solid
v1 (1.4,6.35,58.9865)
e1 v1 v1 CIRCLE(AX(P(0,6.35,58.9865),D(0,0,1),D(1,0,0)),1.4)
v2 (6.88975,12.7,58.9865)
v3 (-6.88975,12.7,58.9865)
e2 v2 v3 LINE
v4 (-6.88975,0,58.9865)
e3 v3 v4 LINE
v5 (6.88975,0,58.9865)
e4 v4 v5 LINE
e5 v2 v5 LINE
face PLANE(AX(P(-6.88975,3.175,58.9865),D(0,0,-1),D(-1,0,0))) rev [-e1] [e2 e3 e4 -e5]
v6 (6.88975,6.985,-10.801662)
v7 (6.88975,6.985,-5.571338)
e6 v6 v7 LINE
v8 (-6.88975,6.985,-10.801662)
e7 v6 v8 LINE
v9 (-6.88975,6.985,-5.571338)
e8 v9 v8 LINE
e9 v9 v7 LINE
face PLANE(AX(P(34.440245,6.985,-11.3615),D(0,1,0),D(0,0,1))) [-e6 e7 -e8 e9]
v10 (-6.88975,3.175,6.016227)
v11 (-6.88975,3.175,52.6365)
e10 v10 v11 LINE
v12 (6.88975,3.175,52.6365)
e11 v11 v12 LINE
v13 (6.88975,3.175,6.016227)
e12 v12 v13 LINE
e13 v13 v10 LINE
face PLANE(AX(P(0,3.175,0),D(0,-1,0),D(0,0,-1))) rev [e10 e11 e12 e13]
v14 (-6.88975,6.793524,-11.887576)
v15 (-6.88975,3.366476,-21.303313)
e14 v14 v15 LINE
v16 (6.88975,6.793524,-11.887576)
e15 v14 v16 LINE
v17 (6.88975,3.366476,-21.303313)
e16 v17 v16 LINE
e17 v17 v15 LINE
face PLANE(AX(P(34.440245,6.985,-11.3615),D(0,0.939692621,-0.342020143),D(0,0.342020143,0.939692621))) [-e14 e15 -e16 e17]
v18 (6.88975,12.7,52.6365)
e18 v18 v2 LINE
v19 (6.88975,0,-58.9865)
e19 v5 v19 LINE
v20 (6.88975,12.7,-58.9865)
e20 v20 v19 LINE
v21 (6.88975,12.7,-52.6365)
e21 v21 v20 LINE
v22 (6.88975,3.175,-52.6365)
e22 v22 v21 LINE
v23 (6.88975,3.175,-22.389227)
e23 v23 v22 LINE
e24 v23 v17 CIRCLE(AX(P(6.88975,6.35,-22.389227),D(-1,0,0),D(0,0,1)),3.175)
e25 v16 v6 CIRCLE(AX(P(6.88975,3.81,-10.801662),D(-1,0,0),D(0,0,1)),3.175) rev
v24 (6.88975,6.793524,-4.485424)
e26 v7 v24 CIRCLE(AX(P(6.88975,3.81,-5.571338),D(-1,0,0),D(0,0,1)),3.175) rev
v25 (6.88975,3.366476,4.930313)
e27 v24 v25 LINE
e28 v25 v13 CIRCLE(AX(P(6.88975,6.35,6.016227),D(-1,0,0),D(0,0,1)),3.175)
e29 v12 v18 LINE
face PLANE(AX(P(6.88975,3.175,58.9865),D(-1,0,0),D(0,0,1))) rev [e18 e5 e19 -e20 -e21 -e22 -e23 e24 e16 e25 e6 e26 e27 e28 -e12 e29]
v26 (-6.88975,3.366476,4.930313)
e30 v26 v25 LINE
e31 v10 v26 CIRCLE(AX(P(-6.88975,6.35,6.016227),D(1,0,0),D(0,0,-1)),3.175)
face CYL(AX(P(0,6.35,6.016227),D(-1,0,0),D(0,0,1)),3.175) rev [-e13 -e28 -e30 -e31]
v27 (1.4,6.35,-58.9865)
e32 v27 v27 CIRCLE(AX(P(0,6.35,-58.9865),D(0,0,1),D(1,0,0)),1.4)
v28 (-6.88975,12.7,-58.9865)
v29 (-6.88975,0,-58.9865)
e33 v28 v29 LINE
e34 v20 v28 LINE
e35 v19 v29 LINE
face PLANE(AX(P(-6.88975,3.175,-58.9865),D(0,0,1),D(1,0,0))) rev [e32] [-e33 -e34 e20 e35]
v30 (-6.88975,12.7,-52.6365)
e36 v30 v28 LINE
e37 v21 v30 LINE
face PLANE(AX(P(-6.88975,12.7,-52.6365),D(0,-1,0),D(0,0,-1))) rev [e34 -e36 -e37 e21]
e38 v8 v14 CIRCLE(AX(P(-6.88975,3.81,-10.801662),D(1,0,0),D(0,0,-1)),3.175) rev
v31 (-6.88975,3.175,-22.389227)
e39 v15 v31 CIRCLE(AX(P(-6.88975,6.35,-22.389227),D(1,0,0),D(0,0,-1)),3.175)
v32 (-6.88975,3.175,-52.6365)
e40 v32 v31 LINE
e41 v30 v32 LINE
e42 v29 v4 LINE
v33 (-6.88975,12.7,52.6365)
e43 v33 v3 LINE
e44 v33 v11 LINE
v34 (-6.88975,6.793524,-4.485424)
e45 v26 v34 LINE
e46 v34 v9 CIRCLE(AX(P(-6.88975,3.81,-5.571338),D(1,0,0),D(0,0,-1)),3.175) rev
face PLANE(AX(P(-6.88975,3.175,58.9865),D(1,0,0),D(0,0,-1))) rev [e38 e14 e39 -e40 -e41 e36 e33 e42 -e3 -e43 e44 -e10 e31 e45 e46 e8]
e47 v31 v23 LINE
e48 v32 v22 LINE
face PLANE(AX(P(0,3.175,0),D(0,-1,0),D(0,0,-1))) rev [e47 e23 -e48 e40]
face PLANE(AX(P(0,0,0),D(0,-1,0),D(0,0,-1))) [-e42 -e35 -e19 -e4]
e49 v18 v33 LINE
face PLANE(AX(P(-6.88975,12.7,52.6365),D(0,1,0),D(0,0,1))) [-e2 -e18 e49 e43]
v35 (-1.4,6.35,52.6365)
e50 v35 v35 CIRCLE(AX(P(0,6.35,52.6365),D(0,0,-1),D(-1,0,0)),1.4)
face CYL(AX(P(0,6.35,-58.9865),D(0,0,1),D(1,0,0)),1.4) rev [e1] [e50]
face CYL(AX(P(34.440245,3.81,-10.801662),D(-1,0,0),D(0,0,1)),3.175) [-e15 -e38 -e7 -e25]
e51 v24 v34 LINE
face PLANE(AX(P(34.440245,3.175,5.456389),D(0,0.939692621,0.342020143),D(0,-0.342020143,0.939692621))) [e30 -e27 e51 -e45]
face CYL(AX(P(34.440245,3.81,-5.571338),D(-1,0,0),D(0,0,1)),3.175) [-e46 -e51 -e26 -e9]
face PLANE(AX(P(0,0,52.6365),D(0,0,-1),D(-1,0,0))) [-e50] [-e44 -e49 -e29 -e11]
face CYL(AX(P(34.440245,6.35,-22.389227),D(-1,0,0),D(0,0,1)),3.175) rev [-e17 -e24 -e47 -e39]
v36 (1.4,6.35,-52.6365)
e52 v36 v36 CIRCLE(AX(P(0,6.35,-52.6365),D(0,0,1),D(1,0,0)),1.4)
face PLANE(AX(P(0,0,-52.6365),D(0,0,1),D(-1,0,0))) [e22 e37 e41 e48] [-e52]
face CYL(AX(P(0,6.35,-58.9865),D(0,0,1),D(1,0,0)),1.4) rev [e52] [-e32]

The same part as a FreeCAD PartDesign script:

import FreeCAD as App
import Part
import Sketcher

V = App.Vector
Q = App.Units.Quantity


def edges_at(feature, points):
    """Names of the edges that pass closest to the given points."""
    edges = feature.Shape.Edges
    near = lambda p: min(range(len(edges)), key=lambda i: edges[i].distToShape(Part.Vertex(*p))[0])
    return sorted({f"Edge{near(p) + 1}" for p in points})


def add_polygon(sketch, points):
    """Adds a closed chain of lines whose ends are joined by coincident constraints."""
    first, n = sketch.GeometryCount, len(points)
    for a, b in zip(points, points[1:] + points[:1]):
        sketch.addGeometry(Part.LineSegment(App.Vector(*a, 0), App.Vector(*b, 0)), False)
    for i in range(n):
        sketch.addConstraint(Sketcher.Constraint("Coincident", first + i, 2, first + (i + 1) % n, 1))

doc = App.newDocument("Part")
body = doc.addObject("PartDesign::Body", "Body")

# Sketch on XZ plane
sketch1 = body.newObject("Sketcher::SketchObject", "Sketch")
sketch1.AttachmentSupport = (doc.getObject("XZ_Plane"), [""])
sketch1.MapMode = "FlatFace"
add_polygon(sketch1, [(-7, -59), (-7, 59), (7, 59), (7, -59)])  # lines 0-3
sketch1.addConstraint(Sketcher.Constraint("Vertical", 0))
sketch1.addConstraint(Sketcher.Constraint("Horizontal", 1))
sketch1.addConstraint(Sketcher.Constraint("Vertical", 2))
sketch1.addConstraint(Sketcher.Constraint("Horizontal", 3))
sketch1.addConstraint(Sketcher.Constraint("Symmetric", 0, 2, 2, 2, -1, 1))
sketch1.addConstraint(Sketcher.Constraint("DistanceX", 1, 1, 1, 2, Q("0.5425 in")))
sketch1.addConstraint(Sketcher.Constraint("DistanceY", 0, 1, 0, 2, Q("117.973 mm")))
pad1 = body.newObject("PartDesign::Pad", "Pad")
pad1.Profile = sketch1
pad1.Length = Q("0.125 in")
pad1.Reversed = True

# Sketch on XY plane
sketch2 = body.newObject("Sketcher::SketchObject", "Sketch001")
sketch2.AttachmentSupport = (doc.getObject("XY_Plane"), [""])
sketch2.MapMode = "FlatFace"
sketch2.AttachmentOffset = App.Placement(V(0, 0, 58.9865), App.Rotation())
add_polygon(sketch2, [(-7, 13), (-7, 3), (7, 3), (7, 13)])  # lines 0-3
sketch2.addConstraint(Sketcher.Constraint("Vertical", 0))
sketch2.addConstraint(Sketcher.Constraint("Horizontal", 1))
sketch2.addConstraint(Sketcher.Constraint("Vertical", 2))
sketch2.addConstraint(Sketcher.Constraint("Horizontal", 3))
sketch2.addConstraint(Sketcher.Constraint("DistanceY", -1, 1, 2, 2, Q("0.5 in")))
sketch2.addConstraint(Sketcher.Constraint("DistanceY", 0, 2, 0, 1, Q("0.375 in")))
sketch2.addConstraint(Sketcher.Constraint("DistanceX", 1, 1, 1, 2, Q("0.5425 in")))
sketch2.addConstraint(Sketcher.Constraint("DistanceX", 0, 2, -1, 1, Q("6.88975 mm")))
pad2 = body.newObject("PartDesign::Pad", "Pad001")
pad2.Profile = sketch2
pad2.Length = Q("0.25 in")
pad2.Reversed = True
doc.recompute()

mirrored = body.newObject("PartDesign::Mirrored", "Mirrored")
mirrored.Originals = [pad2]
mirrored.MirrorPlane = (doc.getObject("XY_Plane"), [""])
body.Tip = mirrored

# Sketch on XY plane
sketch3 = body.newObject("Sketcher::SketchObject", "Sketch002")
sketch3.AttachmentSupport = (doc.getObject("XY_Plane"), [""])
sketch3.MapMode = "FlatFace"
sketch3.AttachmentOffset = App.Placement(V(0, 0, 58.9865), App.Rotation())
sketch3.addGeometry(Part.Circle(V(0, 6.3, 0), V(0, 0, 1), 1.4), False)
sketch3.addConstraint(Sketcher.Constraint("PointOnObject", 0, 3, -2))
sketch3.addConstraint(Sketcher.Constraint("Diameter", 0, Q("2.8 mm")))
sketch3.addConstraint(Sketcher.Constraint("DistanceY", -1, 1, 0, 3, Q("0.25 in")))
pocket1 = body.newObject("PartDesign::Pocket", "Pocket")
pocket1.Profile = sketch3
pocket1.Type = "ThroughAll"

# Sketch on YZ plane
sketch4 = body.newObject("Sketcher::SketchObject", "Sketch003")
sketch4.AttachmentSupport = (doc.getObject("YZ_Plane"), [""])
sketch4.MapMode = "FlatFace"
sketch4.AttachmentOffset = App.Placement(V(0, 0, -6.88975), App.Rotation())
add_polygon(sketch4, [(7, -5), (7, -11), (3, -22), (3, 5)])  # lines 0-3
sketch4.addConstraint(Sketcher.Constraint("Vertical", 0))
sketch4.addConstraint(Sketcher.Constraint("Vertical", 2))
sketch4.addConstraint(Sketcher.Constraint("Equal", 1, 3))
sketch4.addConstraint(Sketcher.Constraint("Angle", 1, Q("-110 deg")))
sketch4.addConstraint(Sketcher.Constraint("DistanceY", 0, 2, 0, 1, Q("0.25 in")))
sketch4.addConstraint(Sketcher.Constraint("DistanceX", 1, 2, 0, 2, Q("0.15 in")))
sketch4.addConstraint(Sketcher.Constraint("DistanceX", -1, 1, 0, 2, Q("0.275 in")))
sketch4.addConstraint(Sketcher.Constraint("DistanceY", 0, 2, -1, 1, Q("11.3615 mm")))
pad3 = body.newObject("PartDesign::Pad", "Pad002")
pad3.Profile = sketch4
pad3.Length = Q("0.5425 in")
doc.recompute()

fillet = body.newObject("PartDesign::Fillet", "Fillet")
fillet.Base = (pad3, edges_at(pad3, [
    (0, 3.175, -21.829),
    (0, 6.985, -11.362),
    (0, 6.985, -5.012),
    (0, 3.175, 5.456),
]))
fillet.Radius = Q("0.125 in")

doc.recompute()
